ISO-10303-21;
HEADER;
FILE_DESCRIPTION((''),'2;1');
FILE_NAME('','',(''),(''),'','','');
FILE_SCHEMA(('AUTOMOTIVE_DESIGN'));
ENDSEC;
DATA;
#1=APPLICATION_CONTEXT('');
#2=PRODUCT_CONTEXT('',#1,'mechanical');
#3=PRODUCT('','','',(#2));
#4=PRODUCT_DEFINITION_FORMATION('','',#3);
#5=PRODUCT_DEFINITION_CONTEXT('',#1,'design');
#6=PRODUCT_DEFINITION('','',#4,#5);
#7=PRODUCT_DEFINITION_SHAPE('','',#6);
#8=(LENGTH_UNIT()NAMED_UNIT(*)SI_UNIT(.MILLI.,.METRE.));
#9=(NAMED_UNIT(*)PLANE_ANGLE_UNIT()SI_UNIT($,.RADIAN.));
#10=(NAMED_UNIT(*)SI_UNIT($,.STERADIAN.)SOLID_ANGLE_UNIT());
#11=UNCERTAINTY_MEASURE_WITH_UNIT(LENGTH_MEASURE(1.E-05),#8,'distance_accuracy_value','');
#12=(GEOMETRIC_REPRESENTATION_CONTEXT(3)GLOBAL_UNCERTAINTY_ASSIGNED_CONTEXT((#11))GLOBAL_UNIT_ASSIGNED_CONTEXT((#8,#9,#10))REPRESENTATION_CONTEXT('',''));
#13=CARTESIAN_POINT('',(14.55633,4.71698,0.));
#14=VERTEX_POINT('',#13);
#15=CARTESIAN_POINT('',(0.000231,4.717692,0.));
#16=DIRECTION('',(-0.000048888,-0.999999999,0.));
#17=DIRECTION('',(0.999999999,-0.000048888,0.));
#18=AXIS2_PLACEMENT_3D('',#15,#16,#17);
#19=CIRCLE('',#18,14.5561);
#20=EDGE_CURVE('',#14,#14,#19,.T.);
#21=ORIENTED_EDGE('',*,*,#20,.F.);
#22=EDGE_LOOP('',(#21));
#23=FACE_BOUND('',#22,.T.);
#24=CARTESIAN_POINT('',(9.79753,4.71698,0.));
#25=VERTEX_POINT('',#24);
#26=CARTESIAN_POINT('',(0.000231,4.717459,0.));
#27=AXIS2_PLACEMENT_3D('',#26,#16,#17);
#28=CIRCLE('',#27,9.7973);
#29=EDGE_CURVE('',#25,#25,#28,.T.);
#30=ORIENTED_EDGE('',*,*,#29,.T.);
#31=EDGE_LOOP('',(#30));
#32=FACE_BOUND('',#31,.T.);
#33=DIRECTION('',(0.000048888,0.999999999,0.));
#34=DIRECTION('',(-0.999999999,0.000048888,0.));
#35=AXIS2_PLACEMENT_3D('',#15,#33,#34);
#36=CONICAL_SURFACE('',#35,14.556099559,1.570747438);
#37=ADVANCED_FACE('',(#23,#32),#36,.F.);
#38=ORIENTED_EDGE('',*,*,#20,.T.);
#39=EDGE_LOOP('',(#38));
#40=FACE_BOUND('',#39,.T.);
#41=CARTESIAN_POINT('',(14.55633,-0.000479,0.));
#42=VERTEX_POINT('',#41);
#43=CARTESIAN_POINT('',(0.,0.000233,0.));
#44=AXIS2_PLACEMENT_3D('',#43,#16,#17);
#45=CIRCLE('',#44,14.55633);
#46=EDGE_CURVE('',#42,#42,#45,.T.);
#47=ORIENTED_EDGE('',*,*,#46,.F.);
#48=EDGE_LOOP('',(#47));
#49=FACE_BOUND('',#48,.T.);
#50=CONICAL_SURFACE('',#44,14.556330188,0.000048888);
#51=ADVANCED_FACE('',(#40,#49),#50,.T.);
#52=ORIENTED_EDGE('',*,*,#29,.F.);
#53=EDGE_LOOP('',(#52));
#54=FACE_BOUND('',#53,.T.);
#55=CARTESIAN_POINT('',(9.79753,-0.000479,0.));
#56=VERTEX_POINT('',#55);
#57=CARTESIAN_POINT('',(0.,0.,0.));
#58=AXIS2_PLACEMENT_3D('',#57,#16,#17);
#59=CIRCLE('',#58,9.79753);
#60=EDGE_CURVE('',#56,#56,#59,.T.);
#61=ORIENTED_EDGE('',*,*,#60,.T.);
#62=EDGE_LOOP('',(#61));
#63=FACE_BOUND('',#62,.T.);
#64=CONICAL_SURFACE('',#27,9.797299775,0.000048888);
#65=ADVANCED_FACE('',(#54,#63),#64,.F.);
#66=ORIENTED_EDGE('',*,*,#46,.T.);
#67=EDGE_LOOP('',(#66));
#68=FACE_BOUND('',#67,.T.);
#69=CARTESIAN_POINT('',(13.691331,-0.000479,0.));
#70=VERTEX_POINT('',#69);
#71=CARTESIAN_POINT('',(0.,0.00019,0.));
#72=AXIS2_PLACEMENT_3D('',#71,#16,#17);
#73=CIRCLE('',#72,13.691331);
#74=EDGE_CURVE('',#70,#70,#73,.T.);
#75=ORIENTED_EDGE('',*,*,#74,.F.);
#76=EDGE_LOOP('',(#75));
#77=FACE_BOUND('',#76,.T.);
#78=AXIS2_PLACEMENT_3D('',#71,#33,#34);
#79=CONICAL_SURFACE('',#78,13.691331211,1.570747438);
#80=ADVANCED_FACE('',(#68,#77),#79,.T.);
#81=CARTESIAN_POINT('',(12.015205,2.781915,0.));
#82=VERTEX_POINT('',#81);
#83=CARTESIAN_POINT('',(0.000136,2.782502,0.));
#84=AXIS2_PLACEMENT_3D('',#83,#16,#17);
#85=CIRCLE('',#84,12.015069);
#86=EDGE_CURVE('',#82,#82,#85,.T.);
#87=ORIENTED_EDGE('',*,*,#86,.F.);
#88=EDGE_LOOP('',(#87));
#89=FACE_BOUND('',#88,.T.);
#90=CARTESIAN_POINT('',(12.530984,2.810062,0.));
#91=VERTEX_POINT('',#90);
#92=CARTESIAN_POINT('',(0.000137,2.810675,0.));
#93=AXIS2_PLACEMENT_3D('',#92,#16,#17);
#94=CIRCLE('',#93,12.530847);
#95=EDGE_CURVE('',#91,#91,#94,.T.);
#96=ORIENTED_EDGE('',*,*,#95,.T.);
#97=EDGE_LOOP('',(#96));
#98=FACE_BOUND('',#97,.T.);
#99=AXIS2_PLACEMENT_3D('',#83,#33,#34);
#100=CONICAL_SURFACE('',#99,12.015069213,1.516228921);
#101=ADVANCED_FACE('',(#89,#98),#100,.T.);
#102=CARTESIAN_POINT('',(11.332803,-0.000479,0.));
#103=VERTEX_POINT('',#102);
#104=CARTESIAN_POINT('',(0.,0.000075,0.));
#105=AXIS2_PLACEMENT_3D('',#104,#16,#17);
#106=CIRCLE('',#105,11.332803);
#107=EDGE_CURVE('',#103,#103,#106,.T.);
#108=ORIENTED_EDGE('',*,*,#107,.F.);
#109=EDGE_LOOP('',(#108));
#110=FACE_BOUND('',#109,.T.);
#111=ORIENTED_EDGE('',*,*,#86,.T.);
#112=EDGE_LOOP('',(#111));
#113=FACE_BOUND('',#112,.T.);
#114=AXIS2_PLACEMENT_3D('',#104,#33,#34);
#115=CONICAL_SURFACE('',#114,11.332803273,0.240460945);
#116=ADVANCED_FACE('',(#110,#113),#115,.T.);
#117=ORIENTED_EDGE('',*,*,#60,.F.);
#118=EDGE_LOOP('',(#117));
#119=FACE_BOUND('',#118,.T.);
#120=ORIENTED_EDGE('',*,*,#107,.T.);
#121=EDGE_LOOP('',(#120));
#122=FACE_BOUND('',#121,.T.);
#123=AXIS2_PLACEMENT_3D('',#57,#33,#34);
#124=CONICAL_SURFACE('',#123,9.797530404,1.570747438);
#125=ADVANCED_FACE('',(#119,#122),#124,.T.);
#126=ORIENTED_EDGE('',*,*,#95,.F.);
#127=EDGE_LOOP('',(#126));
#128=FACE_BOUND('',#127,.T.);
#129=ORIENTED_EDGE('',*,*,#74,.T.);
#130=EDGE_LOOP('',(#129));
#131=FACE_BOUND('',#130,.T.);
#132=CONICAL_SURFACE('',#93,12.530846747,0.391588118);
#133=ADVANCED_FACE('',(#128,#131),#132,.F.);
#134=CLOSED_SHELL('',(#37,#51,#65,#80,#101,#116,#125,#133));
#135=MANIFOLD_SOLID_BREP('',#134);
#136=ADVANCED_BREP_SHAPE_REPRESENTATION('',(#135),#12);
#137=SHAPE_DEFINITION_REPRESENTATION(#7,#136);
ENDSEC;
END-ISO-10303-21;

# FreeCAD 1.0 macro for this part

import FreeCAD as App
import Part
import Sketcher
Q = App.Units.Quantity


def add_polygon(sketch, points):
    """Adds a closed chain of lines whose ends are joined by coincident constraints."""
    first, n = sketch.GeometryCount, len(points)
    for a, b in zip(points, points[1:] + points[:1]):
        sketch.addGeometry(Part.LineSegment(App.Vector(*a, 0), App.Vector(*b, 0)), False)
    for i in range(n):
        sketch.addConstraint(Sketcher.Constraint("Coincident", first + i, 2, first + (i + 1) % n, 1))

doc = App.newDocument("Part")
body = doc.addObject("PartDesign::Body", "Body")

sketch1 = body.newObject("Sketcher::SketchObject", "Sketch")
sketch1.AttachmentSupport = (doc.getObject("XY_Plane"), [""])
sketch1.MapMode = "FlatFace"
add_polygon(sketch1, [(14.6, 0), (14.6, 4.7), (9.8, 4.7), (9.8, 0), (11.3, 0), (12, 2.8), (12.5, 2.8), (13.7, 0)])
sketch1.addGeometry(Part.LineSegment(App.Vector(0, 0, 0), App.Vector(0, 4.7, 0)), True)
sketch1.addConstraint([
    Sketcher.Constraint("Vertical", 0),
    Sketcher.Constraint("Horizontal", 1),
    Sketcher.Constraint("Vertical", 2),
    Sketcher.Constraint("Horizontal", 3),
    Sketcher.Constraint("Horizontal", 7),
    Sketcher.Constraint("Coincident", 8, 1, -1, 1),
    Sketcher.Constraint("Horizontal", 3, 2, 6, 2),
    Sketcher.Constraint("DistanceX", 7, 1, 7, 2, Q("0.864999 mm")),
    Sketcher.Constraint("DistanceX", 1, 2, 1, 1, Q("4.7588 mm")),
    Sketcher.Constraint("DistanceY", 0, 1, 0, 2, Q("4.717459 mm")),
    Sketcher.Constraint("DistanceX", 3, 2, 4, 2, Q("0.682402 mm")),
    Sketcher.Constraint("DistanceX", 8, 2, 1, 2, Q("9.7973 mm")),
    Sketcher.Constraint("Distance", 6, Q("3.040649 mm")),
    Sketcher.Constraint("Distance", 8, Q("4.717692 mm")),
    Sketcher.Constraint("DistanceX", 3, 1, 3, 2, Q("1.535273 mm")),
    Sketcher.Constraint("DistanceX", -1, 1, 0, 2, Q("14.55633 mm")),
    Sketcher.Constraint("DistanceY", -1, 1, 0, 2, Q("4.71698 mm")),
    Sketcher.Constraint("DistanceX", 4, 2, 5, 2, Q("0.515779 mm")),
    Sketcher.Constraint("Distance", 4, Q("2.864854 mm")),
])
revolution = body.newObject("PartDesign::Revolution", "Revolution")
revolution.Profile = sketch1
revolution.ReferenceAxis = (sketch1, ["Axis0"])
revolution.Angle = 360

doc.recompute()
